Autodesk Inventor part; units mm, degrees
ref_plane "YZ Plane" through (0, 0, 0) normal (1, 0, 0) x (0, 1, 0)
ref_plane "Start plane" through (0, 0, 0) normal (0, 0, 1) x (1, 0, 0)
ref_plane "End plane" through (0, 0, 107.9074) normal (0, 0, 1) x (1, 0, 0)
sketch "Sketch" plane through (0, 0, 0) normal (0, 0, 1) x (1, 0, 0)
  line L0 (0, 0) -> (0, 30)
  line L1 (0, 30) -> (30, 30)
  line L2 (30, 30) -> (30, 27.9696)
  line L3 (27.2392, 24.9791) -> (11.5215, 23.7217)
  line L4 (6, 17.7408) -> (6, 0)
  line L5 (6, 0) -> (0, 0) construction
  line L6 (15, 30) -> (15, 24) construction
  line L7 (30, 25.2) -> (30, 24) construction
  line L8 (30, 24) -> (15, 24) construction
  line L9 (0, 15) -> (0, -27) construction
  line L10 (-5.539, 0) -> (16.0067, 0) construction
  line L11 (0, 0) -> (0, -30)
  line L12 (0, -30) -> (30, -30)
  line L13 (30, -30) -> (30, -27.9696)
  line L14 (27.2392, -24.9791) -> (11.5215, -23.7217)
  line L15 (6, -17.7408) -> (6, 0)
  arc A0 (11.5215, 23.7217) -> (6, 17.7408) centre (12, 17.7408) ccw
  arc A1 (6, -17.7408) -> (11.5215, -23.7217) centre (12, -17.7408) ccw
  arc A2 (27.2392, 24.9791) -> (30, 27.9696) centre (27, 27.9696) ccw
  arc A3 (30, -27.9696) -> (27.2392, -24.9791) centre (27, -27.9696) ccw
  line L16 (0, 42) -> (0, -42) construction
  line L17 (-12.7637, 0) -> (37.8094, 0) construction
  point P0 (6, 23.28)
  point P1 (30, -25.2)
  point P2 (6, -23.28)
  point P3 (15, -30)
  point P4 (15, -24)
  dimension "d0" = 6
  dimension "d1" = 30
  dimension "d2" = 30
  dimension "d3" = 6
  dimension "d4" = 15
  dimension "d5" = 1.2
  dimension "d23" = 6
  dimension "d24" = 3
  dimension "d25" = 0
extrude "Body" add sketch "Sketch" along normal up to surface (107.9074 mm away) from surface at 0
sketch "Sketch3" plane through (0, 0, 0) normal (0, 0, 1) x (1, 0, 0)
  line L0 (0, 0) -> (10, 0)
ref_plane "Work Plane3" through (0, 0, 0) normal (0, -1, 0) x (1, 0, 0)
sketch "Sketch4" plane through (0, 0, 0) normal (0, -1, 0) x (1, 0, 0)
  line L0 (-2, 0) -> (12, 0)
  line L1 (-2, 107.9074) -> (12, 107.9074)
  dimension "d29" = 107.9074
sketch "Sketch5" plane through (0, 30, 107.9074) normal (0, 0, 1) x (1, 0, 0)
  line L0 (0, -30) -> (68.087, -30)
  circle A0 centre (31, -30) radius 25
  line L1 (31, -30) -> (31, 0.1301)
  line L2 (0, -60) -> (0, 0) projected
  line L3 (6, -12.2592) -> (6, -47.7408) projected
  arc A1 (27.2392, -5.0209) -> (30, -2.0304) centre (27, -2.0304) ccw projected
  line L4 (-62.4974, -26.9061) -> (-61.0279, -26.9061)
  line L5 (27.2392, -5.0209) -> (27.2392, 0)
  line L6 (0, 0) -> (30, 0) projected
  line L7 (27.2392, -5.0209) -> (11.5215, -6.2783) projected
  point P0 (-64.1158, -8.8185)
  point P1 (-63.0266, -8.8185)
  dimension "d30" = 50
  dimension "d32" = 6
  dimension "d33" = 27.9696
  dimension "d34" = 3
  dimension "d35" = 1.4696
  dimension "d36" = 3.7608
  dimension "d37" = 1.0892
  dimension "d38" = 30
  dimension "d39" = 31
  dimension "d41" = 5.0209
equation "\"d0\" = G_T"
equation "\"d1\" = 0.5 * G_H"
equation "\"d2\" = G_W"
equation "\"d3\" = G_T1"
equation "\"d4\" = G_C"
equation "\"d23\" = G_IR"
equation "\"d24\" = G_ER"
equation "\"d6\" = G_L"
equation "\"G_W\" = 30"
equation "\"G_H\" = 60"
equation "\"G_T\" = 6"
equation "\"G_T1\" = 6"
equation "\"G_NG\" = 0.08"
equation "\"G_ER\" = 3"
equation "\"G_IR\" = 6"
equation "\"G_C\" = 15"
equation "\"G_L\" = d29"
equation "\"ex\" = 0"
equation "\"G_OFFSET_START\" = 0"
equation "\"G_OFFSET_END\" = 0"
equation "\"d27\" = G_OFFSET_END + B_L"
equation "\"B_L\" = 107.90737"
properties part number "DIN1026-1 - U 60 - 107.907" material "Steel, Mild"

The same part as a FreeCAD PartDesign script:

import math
import FreeCAD as App
import Part
import Sketcher
from FreeCAD import Vector

doc = App.newDocument("Part")
body = doc.addObject("PartDesign::Body", "Body")

sketch1 = doc.addObject("Sketcher::SketchObject", "Sketch")
body.addObject(sketch1)
sketch1.AttachmentSupport = (doc.XY_Plane, [""])
sketch1.MapMode = "FlatFace"
sketch1.addGeometry([
    Part.LineSegment(Vector(0, 30, 0), Vector(0, -30, 0)),
    Part.LineSegment(Vector(0, -30, 0), Vector(30, -30, 0)),
    Part.LineSegment(Vector(30, -30, 0), Vector(30, -28, 0)),
    Part.ArcOfCircle(Part.Circle(Vector(27, -28, 0), Vector(0, 0, 1), 3), math.radians(0), math.radians(85)),
    Part.LineSegment(Vector(27.2, -25, 0), Vector(11.5, -23.7, 0)),
    Part.ArcOfCircle(Part.Circle(Vector(12, -17.7, 0), Vector(0, 0, 1), 6), math.radians(180), math.radians(265)),
    Part.LineSegment(Vector(6, -17.7, 0), Vector(6, 17.7, 0)),
    Part.ArcOfCircle(Part.Circle(Vector(12, 17.7, 0), Vector(0, 0, 1), 6), math.radians(95), math.radians(180)),
    Part.LineSegment(Vector(11.5, 23.7, 0), Vector(27.2, 25, 0)),
    Part.ArcOfCircle(Part.Circle(Vector(27, 28, 0), Vector(0, 0, 1), 3), math.radians(-85), math.radians(0)),
    Part.LineSegment(Vector(30, 28, 0), Vector(30, 30, 0)),
    Part.LineSegment(Vector(30, 30, 0), Vector(0, 30, 0)),
], False)
sketch1.addConstraint([
    Sketcher.Constraint("Coincident", 0, 2, 1, 1),
    Sketcher.Constraint("Coincident", 1, 2, 2, 1),
    Sketcher.Constraint("Tangent", 2, 2, 3, 1),
    Sketcher.Constraint("Tangent", 3, 2, 4, 1),
    Sketcher.Constraint("Tangent", 4, 2, 5, 2),
    Sketcher.Constraint("Tangent", 5, 1, 6, 1),
    Sketcher.Constraint("Tangent", 6, 2, 7, 2),
    Sketcher.Constraint("Tangent", 7, 1, 8, 1),
    Sketcher.Constraint("Tangent", 8, 2, 9, 1),
    Sketcher.Constraint("Tangent", 9, 2, 10, 1),
    Sketcher.Constraint("Coincident", 10, 2, 11, 1),
    Sketcher.Constraint("Coincident", 11, 2, 0, 1),
    Sketcher.Constraint("Vertical", 0),
    Sketcher.Constraint("Horizontal", 1),
    Sketcher.Constraint("Vertical", 2),
    Sketcher.Constraint("Vertical", 6),
    Sketcher.Constraint("Vertical", 10),
    Sketcher.Constraint("Horizontal", 11),
    Sketcher.Constraint("Equal", 5, 7),
    Sketcher.Constraint("Equal", 3, 9),
    Sketcher.Constraint("Symmetric", 0, 2, 11, 2, -1, 1),
    Sketcher.Constraint("Symmetric", 3, 3, 9, 3, -1),
    Sketcher.Constraint("Vertical", 4, 2, 7, 1),
    Sketcher.Constraint("Radius", 3, 3.0),
    Sketcher.Constraint("Radius", 5, 6.0),
    Sketcher.Constraint("DistanceX", 1, 1, 1, 2, 30.0),
    Sketcher.Constraint("DistanceY", 0, 2, -1, 1, 30.0),
    Sketcher.Constraint("DistanceX", -1, 1, 5, 1, 6.0),
    Sketcher.Constraint("DistanceY", 5, 3, 8, 2, 42.72),
    Sketcher.Constraint("Distance", 4, 15.768),
])
pad1 = doc.addObject("PartDesign::Pad", "Pad")
body.addObject(pad1)
pad1.Profile = sketch1
pad1.Length = 107.9074

doc.recompute()
